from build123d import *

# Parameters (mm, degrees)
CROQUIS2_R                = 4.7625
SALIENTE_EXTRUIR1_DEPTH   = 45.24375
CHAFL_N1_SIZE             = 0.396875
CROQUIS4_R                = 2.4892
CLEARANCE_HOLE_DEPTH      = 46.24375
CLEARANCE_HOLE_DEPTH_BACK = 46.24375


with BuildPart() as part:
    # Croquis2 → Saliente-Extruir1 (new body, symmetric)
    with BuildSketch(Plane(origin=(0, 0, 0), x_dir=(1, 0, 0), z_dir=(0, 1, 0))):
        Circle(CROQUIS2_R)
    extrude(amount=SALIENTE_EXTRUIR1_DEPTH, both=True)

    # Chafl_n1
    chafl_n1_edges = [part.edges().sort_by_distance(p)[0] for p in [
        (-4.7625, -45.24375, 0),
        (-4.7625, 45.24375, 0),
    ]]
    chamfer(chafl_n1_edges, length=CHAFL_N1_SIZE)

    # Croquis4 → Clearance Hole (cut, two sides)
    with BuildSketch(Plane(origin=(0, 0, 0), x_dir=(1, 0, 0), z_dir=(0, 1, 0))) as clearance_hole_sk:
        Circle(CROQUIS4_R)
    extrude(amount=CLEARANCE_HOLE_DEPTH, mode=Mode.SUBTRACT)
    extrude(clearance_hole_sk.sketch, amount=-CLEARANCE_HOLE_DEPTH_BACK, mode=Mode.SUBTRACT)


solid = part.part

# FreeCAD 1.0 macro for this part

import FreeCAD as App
import Part
import Sketcher
from FreeCAD import Vector
Q = App.Units.Quantity


def edges_at(feature, points):
    """Names of the edges that pass closest to the given points."""
    edges = feature.Shape.Edges
    near = lambda p: min(range(len(edges)), key=lambda i: edges[i].distToShape(Part.Vertex(*p))[0])
    return sorted({f"Edge{near(p) + 1}" for p in points})

doc = App.newDocument("Part")
params = doc.addObject("Spreadsheet::Sheet", "Params")
for row, (alias, value) in enumerate([
    ("sketch1_diameter", "0.375 in"),
    ("pad1_length", "3.5625 in"),
    ("chamfer_size", "0.015625 in"),
    ("sketch2_diameter", "0.196 in"),
], start=1):
    params.set(f"A{row}", alias)
    params.set(f"B{row}", "=" + value)
    params.setAlias(f"B{row}", alias)

body = doc.addObject("PartDesign::Body", "Body")

# Sketch on XZ plane
sketch1 = body.newObject("Sketcher::SketchObject", "Sketch")
sketch1.AttachmentSupport = (doc.getObject("XZ_Plane"), [""])
sketch1.MapMode = "FlatFace"
sketch1.addGeometry(Part.Circle(Vector(0, 0, 0), Vector(0, 0, 1), 4.8), False)
sketch1.addConstraint([
    Sketcher.Constraint("Coincident", 0, 3, -1, 1),
    Sketcher.Constraint("Diameter", 0, Q("0.375 in")),
])
sketch1.setExpression("Constraints[1]", "Params.sketch1_diameter")
pad1 = body.newObject("PartDesign::Pad", "Pad")
pad1.Profile = sketch1
pad1.setExpression("Length", "Params.pad1_length")
pad1.Midplane = True
doc.recompute()

chamfer = body.newObject("PartDesign::Chamfer", "Chamfer")
chamfer.Base = (pad1, edges_at(pad1, [(-4.763, -45.244, 0), (-4.763, 45.244, 0)]))
chamfer.setExpression("Size", "Params.chamfer_size")

# Sketch on XZ plane
sketch2 = body.newObject("Sketcher::SketchObject", "Sketch001")
sketch2.AttachmentSupport = (doc.getObject("XZ_Plane"), [""])
sketch2.MapMode = "FlatFace"
sketch2.addGeometry(Part.Circle(Vector(0, 0, 0), Vector(0, 0, 1), 2.5), False)
sketch2.addConstraint([
    Sketcher.Constraint("Coincident", 0, 3, -1, 1),
    Sketcher.Constraint("Diameter", 0, Q("0.196 in")),
])
sketch2.setExpression("Constraints[1]", "Params.sketch2_diameter")
pocket1 = body.newObject("PartDesign::Pocket", "Pocket")
pocket1.Profile = sketch2
pocket1.Type = "ThroughAll"
pocket1.Midplane = True

doc.recompute()
